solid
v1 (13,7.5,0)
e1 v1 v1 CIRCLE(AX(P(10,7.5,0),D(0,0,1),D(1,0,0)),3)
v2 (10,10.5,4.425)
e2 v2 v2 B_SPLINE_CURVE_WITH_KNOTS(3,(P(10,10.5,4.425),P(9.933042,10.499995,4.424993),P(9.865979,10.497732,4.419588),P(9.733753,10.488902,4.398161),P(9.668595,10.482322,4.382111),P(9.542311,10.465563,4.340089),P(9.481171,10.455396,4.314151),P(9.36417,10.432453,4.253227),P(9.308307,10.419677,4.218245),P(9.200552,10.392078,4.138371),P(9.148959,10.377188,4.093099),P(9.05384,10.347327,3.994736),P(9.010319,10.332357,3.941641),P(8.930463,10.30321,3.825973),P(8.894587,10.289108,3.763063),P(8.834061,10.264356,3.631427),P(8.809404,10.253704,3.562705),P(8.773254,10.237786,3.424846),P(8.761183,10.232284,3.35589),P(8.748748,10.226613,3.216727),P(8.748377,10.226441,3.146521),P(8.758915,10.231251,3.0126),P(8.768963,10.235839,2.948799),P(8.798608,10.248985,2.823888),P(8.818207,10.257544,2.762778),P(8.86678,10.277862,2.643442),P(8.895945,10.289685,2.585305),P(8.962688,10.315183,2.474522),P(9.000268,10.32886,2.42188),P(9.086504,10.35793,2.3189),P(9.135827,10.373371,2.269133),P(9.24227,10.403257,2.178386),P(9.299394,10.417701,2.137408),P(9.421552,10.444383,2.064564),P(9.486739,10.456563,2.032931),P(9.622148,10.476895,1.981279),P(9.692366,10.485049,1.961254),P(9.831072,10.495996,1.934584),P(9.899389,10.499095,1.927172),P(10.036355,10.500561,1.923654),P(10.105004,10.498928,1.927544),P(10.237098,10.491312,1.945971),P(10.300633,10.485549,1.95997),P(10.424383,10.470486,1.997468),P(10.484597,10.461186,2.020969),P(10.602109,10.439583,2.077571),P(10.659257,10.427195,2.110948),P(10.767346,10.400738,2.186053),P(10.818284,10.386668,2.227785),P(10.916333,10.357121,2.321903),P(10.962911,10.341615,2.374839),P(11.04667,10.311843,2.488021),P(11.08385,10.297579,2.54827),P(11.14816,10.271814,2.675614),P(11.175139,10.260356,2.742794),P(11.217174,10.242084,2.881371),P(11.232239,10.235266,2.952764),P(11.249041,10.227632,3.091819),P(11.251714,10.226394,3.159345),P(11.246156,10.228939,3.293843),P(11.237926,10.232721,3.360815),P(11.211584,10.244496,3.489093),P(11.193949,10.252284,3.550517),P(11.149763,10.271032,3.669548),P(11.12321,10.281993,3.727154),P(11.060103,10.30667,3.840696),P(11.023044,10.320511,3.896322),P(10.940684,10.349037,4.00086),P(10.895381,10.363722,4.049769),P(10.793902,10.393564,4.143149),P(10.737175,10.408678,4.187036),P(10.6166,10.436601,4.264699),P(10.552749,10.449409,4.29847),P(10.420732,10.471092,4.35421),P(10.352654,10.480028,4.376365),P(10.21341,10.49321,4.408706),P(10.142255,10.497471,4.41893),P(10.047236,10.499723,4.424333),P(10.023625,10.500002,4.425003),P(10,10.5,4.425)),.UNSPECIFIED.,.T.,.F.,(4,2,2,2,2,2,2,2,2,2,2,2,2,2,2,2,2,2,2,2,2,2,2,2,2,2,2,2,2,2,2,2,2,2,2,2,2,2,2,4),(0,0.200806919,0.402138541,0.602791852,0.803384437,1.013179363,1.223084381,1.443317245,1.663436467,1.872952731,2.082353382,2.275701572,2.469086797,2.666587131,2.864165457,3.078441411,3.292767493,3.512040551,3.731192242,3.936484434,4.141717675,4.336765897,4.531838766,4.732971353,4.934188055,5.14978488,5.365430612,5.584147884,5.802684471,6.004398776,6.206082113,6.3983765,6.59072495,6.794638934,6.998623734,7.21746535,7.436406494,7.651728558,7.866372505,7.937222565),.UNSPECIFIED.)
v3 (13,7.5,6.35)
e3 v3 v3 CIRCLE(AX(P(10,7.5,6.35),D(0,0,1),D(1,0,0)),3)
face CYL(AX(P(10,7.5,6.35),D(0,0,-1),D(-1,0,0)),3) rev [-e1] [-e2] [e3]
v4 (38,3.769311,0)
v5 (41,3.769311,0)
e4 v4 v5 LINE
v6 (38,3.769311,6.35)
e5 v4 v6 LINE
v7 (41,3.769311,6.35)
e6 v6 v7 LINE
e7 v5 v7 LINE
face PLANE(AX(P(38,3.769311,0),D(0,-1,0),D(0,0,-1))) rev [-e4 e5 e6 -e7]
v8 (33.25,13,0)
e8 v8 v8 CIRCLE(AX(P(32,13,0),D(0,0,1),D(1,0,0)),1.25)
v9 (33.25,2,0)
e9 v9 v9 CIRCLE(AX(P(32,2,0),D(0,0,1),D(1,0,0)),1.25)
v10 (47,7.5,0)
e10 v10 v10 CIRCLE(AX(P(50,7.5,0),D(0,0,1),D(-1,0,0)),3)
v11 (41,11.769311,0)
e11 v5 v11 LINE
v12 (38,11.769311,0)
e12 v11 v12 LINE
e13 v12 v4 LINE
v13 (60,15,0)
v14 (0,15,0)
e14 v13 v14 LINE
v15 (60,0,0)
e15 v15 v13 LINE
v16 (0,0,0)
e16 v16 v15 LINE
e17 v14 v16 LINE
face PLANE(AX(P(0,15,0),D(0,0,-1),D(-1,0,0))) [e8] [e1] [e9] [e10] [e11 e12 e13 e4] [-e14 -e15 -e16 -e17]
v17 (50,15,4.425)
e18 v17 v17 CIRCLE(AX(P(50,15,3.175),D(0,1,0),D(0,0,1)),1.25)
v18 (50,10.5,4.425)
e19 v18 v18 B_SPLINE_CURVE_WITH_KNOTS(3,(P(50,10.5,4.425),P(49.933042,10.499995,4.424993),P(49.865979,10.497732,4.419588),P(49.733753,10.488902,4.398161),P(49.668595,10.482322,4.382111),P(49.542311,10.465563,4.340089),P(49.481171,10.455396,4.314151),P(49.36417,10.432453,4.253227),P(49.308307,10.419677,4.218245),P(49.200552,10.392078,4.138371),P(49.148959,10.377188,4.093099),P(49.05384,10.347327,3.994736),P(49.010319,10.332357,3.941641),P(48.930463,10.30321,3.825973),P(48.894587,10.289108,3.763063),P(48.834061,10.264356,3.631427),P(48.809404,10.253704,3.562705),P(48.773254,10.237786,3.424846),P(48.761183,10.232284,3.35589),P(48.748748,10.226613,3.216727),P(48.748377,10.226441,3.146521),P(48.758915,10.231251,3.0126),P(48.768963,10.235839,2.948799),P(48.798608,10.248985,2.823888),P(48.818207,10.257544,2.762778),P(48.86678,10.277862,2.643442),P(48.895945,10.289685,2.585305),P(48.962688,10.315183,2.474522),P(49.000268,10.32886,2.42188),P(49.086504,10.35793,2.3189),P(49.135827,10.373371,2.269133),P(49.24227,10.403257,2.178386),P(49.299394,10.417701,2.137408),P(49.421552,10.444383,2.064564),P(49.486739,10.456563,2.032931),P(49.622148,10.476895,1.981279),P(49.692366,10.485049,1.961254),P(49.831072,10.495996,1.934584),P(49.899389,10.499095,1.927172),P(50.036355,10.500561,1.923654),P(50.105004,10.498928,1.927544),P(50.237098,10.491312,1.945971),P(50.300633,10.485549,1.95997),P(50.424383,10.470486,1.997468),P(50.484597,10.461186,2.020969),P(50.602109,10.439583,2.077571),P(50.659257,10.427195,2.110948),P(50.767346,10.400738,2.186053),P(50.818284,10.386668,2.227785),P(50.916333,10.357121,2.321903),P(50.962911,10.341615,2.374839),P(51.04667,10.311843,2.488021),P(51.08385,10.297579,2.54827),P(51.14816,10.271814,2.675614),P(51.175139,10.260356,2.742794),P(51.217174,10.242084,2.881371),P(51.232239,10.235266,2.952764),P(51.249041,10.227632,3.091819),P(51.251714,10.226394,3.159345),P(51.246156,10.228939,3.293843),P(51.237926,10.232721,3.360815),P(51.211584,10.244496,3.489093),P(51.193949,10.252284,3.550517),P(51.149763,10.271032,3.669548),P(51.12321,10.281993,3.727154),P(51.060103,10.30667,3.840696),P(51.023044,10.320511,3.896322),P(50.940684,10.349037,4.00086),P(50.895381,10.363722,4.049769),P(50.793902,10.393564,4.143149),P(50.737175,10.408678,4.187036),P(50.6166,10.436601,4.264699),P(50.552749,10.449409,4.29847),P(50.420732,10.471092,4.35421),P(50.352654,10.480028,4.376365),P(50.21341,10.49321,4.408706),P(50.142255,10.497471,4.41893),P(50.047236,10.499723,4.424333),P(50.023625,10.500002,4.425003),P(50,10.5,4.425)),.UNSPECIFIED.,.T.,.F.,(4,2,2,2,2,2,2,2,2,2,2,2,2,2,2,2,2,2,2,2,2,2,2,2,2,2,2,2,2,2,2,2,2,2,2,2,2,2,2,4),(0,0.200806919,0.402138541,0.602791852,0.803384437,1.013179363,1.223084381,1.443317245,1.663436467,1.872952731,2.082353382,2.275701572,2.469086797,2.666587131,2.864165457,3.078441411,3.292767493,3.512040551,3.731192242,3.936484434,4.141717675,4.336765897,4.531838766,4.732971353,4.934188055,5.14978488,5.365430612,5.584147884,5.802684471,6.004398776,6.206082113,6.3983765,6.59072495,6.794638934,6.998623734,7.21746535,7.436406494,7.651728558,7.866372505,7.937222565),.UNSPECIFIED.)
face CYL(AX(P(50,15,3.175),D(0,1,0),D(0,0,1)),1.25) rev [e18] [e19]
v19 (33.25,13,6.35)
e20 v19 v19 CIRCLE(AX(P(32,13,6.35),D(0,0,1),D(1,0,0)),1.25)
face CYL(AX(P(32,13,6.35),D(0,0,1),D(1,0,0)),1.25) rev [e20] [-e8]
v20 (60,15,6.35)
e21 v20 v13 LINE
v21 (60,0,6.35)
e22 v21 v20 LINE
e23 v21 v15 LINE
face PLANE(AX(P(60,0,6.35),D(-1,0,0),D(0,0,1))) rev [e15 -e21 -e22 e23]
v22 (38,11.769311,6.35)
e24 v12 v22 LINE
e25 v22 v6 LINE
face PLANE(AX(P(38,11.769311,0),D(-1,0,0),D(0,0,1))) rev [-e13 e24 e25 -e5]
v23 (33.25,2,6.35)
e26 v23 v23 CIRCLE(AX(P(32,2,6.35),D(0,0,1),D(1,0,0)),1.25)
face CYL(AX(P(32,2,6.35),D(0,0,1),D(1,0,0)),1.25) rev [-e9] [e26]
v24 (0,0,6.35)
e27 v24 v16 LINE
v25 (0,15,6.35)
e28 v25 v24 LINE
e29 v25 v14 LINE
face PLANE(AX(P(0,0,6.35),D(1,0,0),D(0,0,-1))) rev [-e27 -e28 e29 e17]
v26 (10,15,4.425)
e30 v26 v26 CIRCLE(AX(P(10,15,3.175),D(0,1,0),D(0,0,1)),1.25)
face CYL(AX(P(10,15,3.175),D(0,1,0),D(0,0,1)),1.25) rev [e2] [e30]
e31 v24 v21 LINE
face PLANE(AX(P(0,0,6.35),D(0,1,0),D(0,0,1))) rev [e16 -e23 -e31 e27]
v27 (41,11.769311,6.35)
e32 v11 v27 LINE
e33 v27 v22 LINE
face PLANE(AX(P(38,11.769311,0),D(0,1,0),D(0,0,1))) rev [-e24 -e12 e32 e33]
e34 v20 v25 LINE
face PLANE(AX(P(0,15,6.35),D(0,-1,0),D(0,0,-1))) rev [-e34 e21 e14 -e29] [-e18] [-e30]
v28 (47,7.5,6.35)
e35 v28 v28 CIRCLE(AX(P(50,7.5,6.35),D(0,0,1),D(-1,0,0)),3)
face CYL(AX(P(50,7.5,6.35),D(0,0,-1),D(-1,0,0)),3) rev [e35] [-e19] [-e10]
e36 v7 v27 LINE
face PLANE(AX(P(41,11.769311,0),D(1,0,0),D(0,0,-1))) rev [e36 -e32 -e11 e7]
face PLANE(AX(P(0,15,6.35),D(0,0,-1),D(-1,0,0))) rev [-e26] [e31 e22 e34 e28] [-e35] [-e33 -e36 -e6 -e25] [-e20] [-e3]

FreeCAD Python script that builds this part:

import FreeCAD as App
import Part
import Sketcher

V = App.Vector
Q = App.Units.Quantity

doc = App.newDocument("Part")
body = doc.addObject("PartDesign::Body", "Body")

sketch1 = doc.addObject("Sketcher::SketchObject", "Sketch")
body.addObject(sketch1)
sketch1.AttachmentSupport = (doc.XY_Plane, [""])
sketch1.MapMode = "FlatFace"
sketch1.addGeometry(Part.LineSegment(V(0, 15, 0), V(0, 0, 0)), False)
sketch1.addGeometry(Part.LineSegment(V(0, 0, 0), V(60, 0, 0)), False)
sketch1.addGeometry(Part.LineSegment(V(60, 0, 0), V(60, 15, 0)), False)
sketch1.addGeometry(Part.LineSegment(V(60, 15, 0), V(0, 15, 0)), False)
sketch1.addGeometry(Part.Circle(V(10, 7.5, 0), V(0, 0, 1), 3), False)
sketch1.addGeometry(Part.Circle(V(50, 7.5, 0), V(0, 0, 1), 3), False)
sketch1.addConstraint(Sketcher.Constraint("Coincident", 0, 2, 1, 1))
sketch1.addConstraint(Sketcher.Constraint("Coincident", 1, 2, 2, 1))
sketch1.addConstraint(Sketcher.Constraint("Coincident", 2, 2, 3, 1))
sketch1.addConstraint(Sketcher.Constraint("Coincident", 3, 2, 0, 1))
sketch1.addConstraint(Sketcher.Constraint("Vertical", 0))
sketch1.addConstraint(Sketcher.Constraint("Horizontal", 1))
sketch1.addConstraint(Sketcher.Constraint("Vertical", 2))
sketch1.addConstraint(Sketcher.Constraint("Horizontal", 3))
sketch1.addConstraint(Sketcher.Constraint("Coincident", 0, 2, -1, 1))
sketch1.addConstraint(Sketcher.Constraint("Equal", 4, 5))
sketch1.addConstraint(Sketcher.Constraint("Horizontal", 4, 3, 5, 3))
sketch1.addConstraint(Sketcher.Constraint("Diameter", 4, Q("6 mm")))
sketch1.addConstraint(Sketcher.Constraint("DistanceX", 1, 1, 1, 2, Q("60 mm")))
sketch1.addConstraint(Sketcher.Constraint("DistanceY", 0, 2, 0, 1, Q("15 mm")))
sketch1.addConstraint(Sketcher.Constraint("DistanceX", -1, 1, 4, 3, Q("10 mm")))
sketch1.addConstraint(Sketcher.Constraint("DistanceX", -1, 1, 5, 3, Q("50 mm")))
sketch1.addConstraint(Sketcher.Constraint("DistanceY", -1, 1, 4, 3, Q("7.5 mm")))
pad1 = doc.addObject("PartDesign::Pad", "Pad")
body.addObject(pad1)
pad1.Profile = sketch1
pad1.Length = 6.35

sketch2 = doc.addObject("Sketcher::SketchObject", "Sketch001")
body.addObject(sketch2)
sketch2.AttachmentSupport = (doc.XZ_Plane, [""])
sketch2.MapMode = "FlatFace"
sketch2.AttachmentOffset = App.Placement(V(0, 0, -15), App.Rotation())
sketch2.addGeometry(Part.Circle(V(10, 3.175, 0), V(0, 0, 1), 1.25), False)
sketch2.addGeometry(Part.Circle(V(50, 3.175, 0), V(0, 0, 1), 1.25), False)
sketch2.addConstraint(Sketcher.Constraint("Equal", 0, 1))
sketch2.addConstraint(Sketcher.Constraint("Horizontal", 0, 3, 1, 3))
sketch2.addConstraint(Sketcher.Constraint("Diameter", 0, Q("2.5 mm")))
sketch2.addConstraint(Sketcher.Constraint("DistanceX", -1, 1, 0, 3, Q("10 mm")))
sketch2.addConstraint(Sketcher.Constraint("DistanceX", -1, 1, 1, 3, Q("50 mm")))
sketch2.addConstraint(Sketcher.Constraint("DistanceY", -1, 1, 0, 3, Q("3.175 mm")))
doc.recompute()
hole = doc.addObject("PartDesign::Hole", "Hole")
body.addObject(hole)
hole.Profile = sketch2
hole.ThreadType = "None"
hole.Diameter = 2.5
hole.DepthType = "Dimension"
hole.Depth = 8.5
hole.DrillPoint = "Angled"
hole.DrillPointAngle = 118
hole.Reversed = True

sketch3 = doc.addObject("Sketcher::SketchObject", "Sketch002")
body.addObject(sketch3)
sketch3.AttachmentSupport = (doc.XY_Plane, [""])
sketch3.MapMode = "FlatFace"
sketch3.AttachmentOffset = App.Placement(V(0, 0, 6.35), App.Rotation())
sketch3.addGeometry(Part.LineSegment(V(38, 11.769311, 0), V(38, 3.769311, 0)), False)
sketch3.addGeometry(Part.LineSegment(V(38, 3.769311, 0), V(41, 3.769311, 0)), False)
sketch3.addGeometry(Part.LineSegment(V(41, 3.769311, 0), V(41, 11.769311, 0)), False)
sketch3.addGeometry(Part.LineSegment(V(41, 11.769311, 0), V(38, 11.769311, 0)), False)
sketch3.addConstraint(Sketcher.Constraint("Coincident", 0, 2, 1, 1))
sketch3.addConstraint(Sketcher.Constraint("Coincident", 1, 2, 2, 1))
sketch3.addConstraint(Sketcher.Constraint("Coincident", 2, 2, 3, 1))
sketch3.addConstraint(Sketcher.Constraint("Coincident", 3, 2, 0, 1))
sketch3.addConstraint(Sketcher.Constraint("Vertical", 0))
sketch3.addConstraint(Sketcher.Constraint("Horizontal", 1))
sketch3.addConstraint(Sketcher.Constraint("Vertical", 2))
sketch3.addConstraint(Sketcher.Constraint("Horizontal", 3))
sketch3.addConstraint(Sketcher.Constraint("DistanceX", 1, 1, 1, 2, Q("3 mm")))
sketch3.addConstraint(Sketcher.Constraint("DistanceY", 0, 2, 0, 1, Q("8 mm")))
sketch3.addConstraint(Sketcher.Constraint("DistanceX", -1, 1, 0, 2, Q("38 mm")))
sketch3.addConstraint(Sketcher.Constraint("DistanceY", -1, 1, 0, 2, Q("3.769311 mm")))
pocket1 = doc.addObject("PartDesign::Pocket", "Pocket")
body.addObject(pocket1)
pocket1.Profile = sketch3
pocket1.Type = "ThroughAll"

sketch4 = doc.addObject("Sketcher::SketchObject", "Sketch003")
body.addObject(sketch4)
sketch4.AttachmentSupport = (doc.XY_Plane, [""])
sketch4.MapMode = "FlatFace"
sketch4.AttachmentOffset = App.Placement(V(0, 0, 6.35), App.Rotation())
sketch4.addGeometry(Part.Circle(V(32, 13, 0), V(0, 0, 1), 1.25), False)
sketch4.addGeometry(Part.Circle(V(32, 2, 0), V(0, 0, 1), 1.25), False)
sketch4.addConstraint(Sketcher.Constraint("Equal", 0, 1))
sketch4.addConstraint(Sketcher.Constraint("Vertical", 0, 3, 1, 3))
sketch4.addConstraint(Sketcher.Constraint("Diameter", 0, Q("2.5 mm")))
sketch4.addConstraint(Sketcher.Constraint("DistanceX", -1, 1, 0, 3, Q("32 mm")))
sketch4.addConstraint(Sketcher.Constraint("DistanceY", -1, 1, 0, 3, Q("13 mm")))
sketch4.addConstraint(Sketcher.Constraint("DistanceY", -1, 1, 1, 3, Q("2 mm")))
doc.recompute()
hole2 = doc.addObject("PartDesign::Hole", "Hole001")
body.addObject(hole2)
hole2.Profile = sketch4
hole2.ThreadType = "None"
hole2.Diameter = 2.5
hole2.DepthType = "ThroughAll"

doc.recompute()
